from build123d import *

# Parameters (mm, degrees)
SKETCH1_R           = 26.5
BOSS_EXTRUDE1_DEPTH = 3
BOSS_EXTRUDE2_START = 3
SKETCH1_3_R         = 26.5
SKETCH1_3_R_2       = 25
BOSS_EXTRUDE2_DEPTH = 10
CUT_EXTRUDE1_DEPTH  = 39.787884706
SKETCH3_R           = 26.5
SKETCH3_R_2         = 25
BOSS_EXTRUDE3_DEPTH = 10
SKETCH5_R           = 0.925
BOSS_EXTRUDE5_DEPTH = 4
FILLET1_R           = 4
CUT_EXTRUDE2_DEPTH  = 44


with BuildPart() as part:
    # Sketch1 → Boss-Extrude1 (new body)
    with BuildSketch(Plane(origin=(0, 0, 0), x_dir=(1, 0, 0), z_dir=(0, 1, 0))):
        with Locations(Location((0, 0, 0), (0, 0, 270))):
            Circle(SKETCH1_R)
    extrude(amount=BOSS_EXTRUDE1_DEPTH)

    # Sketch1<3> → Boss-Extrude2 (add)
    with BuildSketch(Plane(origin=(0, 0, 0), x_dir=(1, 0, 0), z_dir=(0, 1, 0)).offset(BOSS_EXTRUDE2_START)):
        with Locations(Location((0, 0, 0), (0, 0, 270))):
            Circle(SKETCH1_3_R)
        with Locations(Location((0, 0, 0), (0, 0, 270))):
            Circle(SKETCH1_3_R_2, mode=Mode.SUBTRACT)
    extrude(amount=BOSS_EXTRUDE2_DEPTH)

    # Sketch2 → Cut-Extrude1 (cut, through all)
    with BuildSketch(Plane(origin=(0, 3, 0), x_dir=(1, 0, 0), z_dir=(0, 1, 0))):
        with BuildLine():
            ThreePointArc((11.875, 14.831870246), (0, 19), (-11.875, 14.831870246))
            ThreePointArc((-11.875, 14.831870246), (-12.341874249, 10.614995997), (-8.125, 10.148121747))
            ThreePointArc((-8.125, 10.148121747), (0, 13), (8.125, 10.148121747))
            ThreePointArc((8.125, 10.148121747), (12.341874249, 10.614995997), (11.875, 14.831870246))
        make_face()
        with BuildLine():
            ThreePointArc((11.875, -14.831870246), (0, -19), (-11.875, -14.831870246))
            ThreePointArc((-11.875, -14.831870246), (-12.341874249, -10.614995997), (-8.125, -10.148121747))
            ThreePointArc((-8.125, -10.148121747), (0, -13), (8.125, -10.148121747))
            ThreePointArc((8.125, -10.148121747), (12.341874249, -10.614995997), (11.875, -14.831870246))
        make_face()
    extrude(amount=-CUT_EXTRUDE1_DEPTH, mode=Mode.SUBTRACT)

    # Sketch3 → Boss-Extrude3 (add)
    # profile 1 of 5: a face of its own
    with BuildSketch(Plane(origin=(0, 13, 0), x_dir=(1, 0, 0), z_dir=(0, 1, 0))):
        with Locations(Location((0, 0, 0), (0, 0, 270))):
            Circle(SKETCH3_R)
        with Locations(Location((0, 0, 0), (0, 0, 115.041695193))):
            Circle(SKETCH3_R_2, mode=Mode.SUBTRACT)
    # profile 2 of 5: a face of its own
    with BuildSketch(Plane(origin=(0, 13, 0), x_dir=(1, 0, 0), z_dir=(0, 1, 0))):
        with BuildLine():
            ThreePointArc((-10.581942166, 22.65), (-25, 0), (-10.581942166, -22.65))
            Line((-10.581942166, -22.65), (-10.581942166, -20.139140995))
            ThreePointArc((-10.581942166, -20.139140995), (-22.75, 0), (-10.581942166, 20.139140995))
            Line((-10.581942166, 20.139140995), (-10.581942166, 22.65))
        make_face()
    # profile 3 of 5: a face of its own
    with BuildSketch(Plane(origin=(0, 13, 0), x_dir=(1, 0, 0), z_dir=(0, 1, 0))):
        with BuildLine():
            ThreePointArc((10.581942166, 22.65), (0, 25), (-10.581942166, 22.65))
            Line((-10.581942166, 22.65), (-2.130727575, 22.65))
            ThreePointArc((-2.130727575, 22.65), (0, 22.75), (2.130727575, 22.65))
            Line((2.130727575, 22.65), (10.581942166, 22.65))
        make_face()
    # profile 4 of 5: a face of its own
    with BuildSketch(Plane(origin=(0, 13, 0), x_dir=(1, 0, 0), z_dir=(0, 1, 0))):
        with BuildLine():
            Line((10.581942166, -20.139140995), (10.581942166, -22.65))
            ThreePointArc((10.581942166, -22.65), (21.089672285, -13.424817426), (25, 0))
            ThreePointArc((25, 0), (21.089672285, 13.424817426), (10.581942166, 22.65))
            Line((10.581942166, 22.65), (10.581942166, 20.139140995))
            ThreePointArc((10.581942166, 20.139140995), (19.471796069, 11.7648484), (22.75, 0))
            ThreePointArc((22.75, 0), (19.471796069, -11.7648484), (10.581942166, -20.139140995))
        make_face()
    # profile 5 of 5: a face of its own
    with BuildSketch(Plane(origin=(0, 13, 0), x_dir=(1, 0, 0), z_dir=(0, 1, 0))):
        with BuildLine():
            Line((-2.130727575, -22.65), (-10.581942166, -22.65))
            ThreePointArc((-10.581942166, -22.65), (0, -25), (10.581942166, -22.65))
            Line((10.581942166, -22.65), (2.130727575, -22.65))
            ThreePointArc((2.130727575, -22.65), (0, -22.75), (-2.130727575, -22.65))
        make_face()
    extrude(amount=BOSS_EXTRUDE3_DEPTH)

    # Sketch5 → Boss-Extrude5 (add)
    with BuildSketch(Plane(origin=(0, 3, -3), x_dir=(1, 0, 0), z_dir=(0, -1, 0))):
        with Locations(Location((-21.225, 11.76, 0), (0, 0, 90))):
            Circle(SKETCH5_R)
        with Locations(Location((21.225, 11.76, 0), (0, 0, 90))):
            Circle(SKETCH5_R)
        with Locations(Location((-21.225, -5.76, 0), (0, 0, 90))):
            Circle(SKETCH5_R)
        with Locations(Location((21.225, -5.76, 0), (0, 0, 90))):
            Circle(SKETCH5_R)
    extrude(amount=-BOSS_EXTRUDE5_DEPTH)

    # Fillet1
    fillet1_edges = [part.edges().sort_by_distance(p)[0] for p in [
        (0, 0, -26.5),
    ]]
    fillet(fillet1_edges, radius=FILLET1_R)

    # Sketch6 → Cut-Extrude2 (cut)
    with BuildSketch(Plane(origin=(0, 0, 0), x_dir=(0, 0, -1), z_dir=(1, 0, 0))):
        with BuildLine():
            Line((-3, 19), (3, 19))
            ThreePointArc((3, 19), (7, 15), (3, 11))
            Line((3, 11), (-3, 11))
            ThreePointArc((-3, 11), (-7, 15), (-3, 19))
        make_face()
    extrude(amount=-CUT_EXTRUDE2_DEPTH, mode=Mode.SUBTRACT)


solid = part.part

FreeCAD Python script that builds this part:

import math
import FreeCAD as App
import Part
import Sketcher
from FreeCAD import Vector
Q = App.Units.Quantity


def edges_at(feature, points):
    """Names of the edges that pass closest to the given points."""
    edges = feature.Shape.Edges
    near = lambda p: min(range(len(edges)), key=lambda i: edges[i].distToShape(Part.Vertex(*p))[0])
    return sorted({f"Edge{near(p) + 1}" for p in points})

doc = App.newDocument("Part")
body = doc.addObject("PartDesign::Body", "Body")

# Sketch on XZ plane
sketch1 = doc.addObject("Sketcher::SketchObject", "Sketch")
body.addObject(sketch1)
sketch1.AttachmentSupport = (doc.XZ_Plane, [""])
sketch1.MapMode = "FlatFace"
sketch1.addGeometry(Part.Circle(Vector(0, 0, 0), Vector(0, 0, 1), 26.5), False)
sketch1.addConstraint(Sketcher.Constraint("Coincident", 0, 3, -1, 1))
sketch1.addConstraint(Sketcher.Constraint("Diameter", 0, Q("53 mm")))
pad1 = doc.addObject("PartDesign::Pad", "Pad")
body.addObject(pad1)
pad1.Profile = sketch1
pad1.Length = 3
pad1.Reversed = True

# Sketch on XZ plane
sketch2 = doc.addObject("Sketcher::SketchObject", "Sketch001")
body.addObject(sketch2)
sketch2.AttachmentSupport = (doc.XZ_Plane, [""])
sketch2.MapMode = "FlatFace"
sketch2.AttachmentOffset = App.Placement(Vector(0, 0, -3), App.Rotation())
sketch2.addGeometry(Part.Circle(Vector(0, 0, 0), Vector(0, 0, 1), 26.5), False)
sketch2.addGeometry(Part.Circle(Vector(0, 0, 0), Vector(0, 0, 1), 25), False)
sketch2.addConstraint(Sketcher.Constraint("Coincident", 0, 3, -1, 1))
sketch2.addConstraint(Sketcher.Constraint("Coincident", 1, 3, -1, 1))
sketch2.addConstraint(Sketcher.Constraint("Diameter", 0, Q("53 mm")))
sketch2.addConstraint(Sketcher.Constraint("Diameter", 1, Q("50 mm")))
pad2 = doc.addObject("PartDesign::Pad", "Pad001")
body.addObject(pad2)
pad2.Profile = sketch2
pad2.Length = 10
pad2.Reversed = True

# Sketch on XZ plane
sketch3 = doc.addObject("Sketcher::SketchObject", "Sketch002")
body.addObject(sketch3)
sketch3.AttachmentSupport = (doc.XZ_Plane, [""])
sketch3.MapMode = "FlatFace"
sketch3.AttachmentOffset = App.Placement(Vector(0, 0, -3), App.Rotation())
sketch3.addGeometry(Part.ArcOfCircle(Part.Circle(Vector(0, 0, 0), Vector(0, 0, 1), 19), math.radians(-128.682187), math.radians(-51.317813)), False)
sketch3.addGeometry(Part.ArcOfCircle(Part.Circle(Vector(-10, -12.489996, 0), Vector(0, 0, 1), 3), math.radians(51.317813), math.radians(231.317813)), False)
sketch3.addGeometry(Part.ArcOfCircle(Part.Circle(Vector(0, 0, 0), Vector(0, 0, 1), 13), math.radians(-128.682187), math.radians(-51.317813)), False)
sketch3.addGeometry(Part.ArcOfCircle(Part.Circle(Vector(10, -12.489996, 0), Vector(0, 0, 1), 3), math.radians(-51.317813), math.radians(128.682187)), False)
sketch3.addGeometry(Part.ArcOfCircle(Part.Circle(Vector(0, 0, 0), Vector(0, 0, 1), 19), math.radians(51.317813), math.radians(128.682187)), False)
sketch3.addGeometry(Part.ArcOfCircle(Part.Circle(Vector(10, 12.489996, 0), Vector(0, 0, 1), 3), math.radians(-128.682187), math.radians(51.317813)), False)
sketch3.addGeometry(Part.ArcOfCircle(Part.Circle(Vector(0, 0, 0), Vector(0, 0, 1), 13), math.radians(51.317813), math.radians(128.682187)), False)
sketch3.addGeometry(Part.ArcOfCircle(Part.Circle(Vector(-10, 12.489996, 0), Vector(0, 0, 1), 3), math.radians(128.682187), math.radians(308.682187)), False)
sketch3.addConstraint(Sketcher.Constraint("Tangent", 0, 1, 1, 2))
sketch3.addConstraint(Sketcher.Constraint("Tangent", 1, 1, 2, 1))
sketch3.addConstraint(Sketcher.Constraint("Tangent", 2, 2, 3, 2))
sketch3.addConstraint(Sketcher.Constraint("Tangent", 3, 1, 0, 2))
sketch3.addConstraint(Sketcher.Constraint("Tangent", 4, 1, 5, 2))
sketch3.addConstraint(Sketcher.Constraint("Tangent", 5, 1, 6, 1))
sketch3.addConstraint(Sketcher.Constraint("Tangent", 6, 2, 7, 2))
sketch3.addConstraint(Sketcher.Constraint("Tangent", 7, 1, 4, 2))
sketch3.addConstraint(Sketcher.Constraint("Coincident", 0, 3, -1, 1))
sketch3.addConstraint(Sketcher.Constraint("Coincident", 2, 3, -1, 1))
sketch3.addConstraint(Sketcher.Constraint("Coincident", 4, 3, -1, 1))
sketch3.addConstraint(Sketcher.Constraint("Coincident", 6, 3, -1, 1))
sketch3.addConstraint(Sketcher.Constraint("Equal", 0, 4))
sketch3.addConstraint(Sketcher.Constraint("Equal", 3, 5))
sketch3.addConstraint(Sketcher.Constraint("Horizontal", 1, 3, 3, 3))
sketch3.addConstraint(Sketcher.Constraint("Horizontal", 5, 3, 7, 3))
sketch3.addConstraint(Sketcher.Constraint("Vertical", 3, 3, 5, 3))
sketch3.addConstraint(Sketcher.Constraint("Radius", 0, Q("19 mm")))
sketch3.addConstraint(Sketcher.Constraint("Radius", 1, Q("3 mm")))
sketch3.addConstraint(Sketcher.Constraint("DistanceX", 1, 3, -1, 1, Q("10 mm")))
pocket1 = doc.addObject("PartDesign::Pocket", "Pocket")
body.addObject(pocket1)
pocket1.Profile = sketch3
pocket1.Type = "ThroughAll"
pocket1.Reversed = True

# Sketch on XZ plane
sketch4 = doc.addObject("Sketcher::SketchObject", "Sketch003")
body.addObject(sketch4)
sketch4.AttachmentSupport = (doc.XZ_Plane, [""])
sketch4.MapMode = "FlatFace"
sketch4.AttachmentOffset = App.Placement(Vector(0, 0, -13), App.Rotation())
sketch4.addGeometry(Part.Circle(Vector(0, 0, 0), Vector(0, 0, 1), 26.5), False)
sketch4.addGeometry(Part.LineSegment(Vector(-10.581942, -20.139141, 0), Vector(-10.581942, -22.65, 0)), False)
sketch4.addGeometry(Part.LineSegment(Vector(-10.581942, -22.65, 0), Vector(-2.130728, -22.65, 0)), False)
sketch4.addGeometry(Part.ArcOfCircle(Part.Circle(Vector(0, 0, 0), Vector(0, 0, 1), 22.75), math.radians(-95.374105), math.radians(-84.625895)), False)
sketch4.addGeometry(Part.LineSegment(Vector(2.130728, -22.65, 0), Vector(10.581942, -22.65, 0)), False)
sketch4.addGeometry(Part.LineSegment(Vector(10.581942, -22.65, 0), Vector(10.581942, -20.139141, 0)), False)
sketch4.addGeometry(Part.ArcOfCircle(Part.Circle(Vector(0, 0, 0), Vector(0, 0, 1), 22.75), math.radians(-62.280697), math.radians(0)), False)
sketch4.addGeometry(Part.ArcOfCircle(Part.Circle(Vector(0, 0, 0), Vector(0, 0, 1), 22.75), math.radians(0), math.radians(62.280697)), False)
sketch4.addGeometry(Part.LineSegment(Vector(10.581942, 20.139141, 0), Vector(10.581942, 22.65, 0)), False)
sketch4.addGeometry(Part.LineSegment(Vector(10.581942, 22.65, 0), Vector(2.130728, 22.65, 0)), False)
sketch4.addGeometry(Part.ArcOfCircle(Part.Circle(Vector(0, 0, 0), Vector(0, 0, 1), 22.75), math.radians(84.625895), math.radians(95.374105)), False)
sketch4.addGeometry(Part.LineSegment(Vector(-2.130728, 22.65, 0), Vector(-10.581942, 22.65, 0)), False)
sketch4.addGeometry(Part.LineSegment(Vector(-10.581942, 22.65, 0), Vector(-10.581942, 20.139141, 0)), False)
sketch4.addGeometry(Part.ArcOfCircle(Part.Circle(Vector(0, 0, 0), Vector(0, 0, 1), 22.75), math.radians(117.719303), math.radians(242.280697)), False)
sketch4.addConstraint(Sketcher.Constraint("Coincident", 1, 2, 2, 1))
sketch4.addConstraint(Sketcher.Constraint("Coincident", 2, 2, 3, 1))
sketch4.addConstraint(Sketcher.Constraint("Coincident", 3, 2, 4, 1))
sketch4.addConstraint(Sketcher.Constraint("Coincident", 4, 2, 5, 1))
sketch4.addConstraint(Sketcher.Constraint("Coincident", 5, 2, 6, 1))
sketch4.addConstraint(Sketcher.Constraint("Tangent", 6, 2, 7, 1))
sketch4.addConstraint(Sketcher.Constraint("Coincident", 7, 2, 8, 1))
sketch4.addConstraint(Sketcher.Constraint("Coincident", 8, 2, 9, 1))
sketch4.addConstraint(Sketcher.Constraint("Coincident", 9, 2, 10, 1))
sketch4.addConstraint(Sketcher.Constraint("Coincident", 10, 2, 11, 1))
sketch4.addConstraint(Sketcher.Constraint("Coincident", 11, 2, 12, 1))
sketch4.addConstraint(Sketcher.Constraint("Coincident", 12, 2, 13, 1))
sketch4.addConstraint(Sketcher.Constraint("Coincident", 13, 2, 1, 1))
sketch4.addConstraint(Sketcher.Constraint("Vertical", 1))
sketch4.addConstraint(Sketcher.Constraint("Horizontal", 2))
sketch4.addConstraint(Sketcher.Constraint("Horizontal", 4))
sketch4.addConstraint(Sketcher.Constraint("Vertical", 5))
sketch4.addConstraint(Sketcher.Constraint("Vertical", 8))
sketch4.addConstraint(Sketcher.Constraint("Horizontal", 9))
sketch4.addConstraint(Sketcher.Constraint("Horizontal", 11))
sketch4.addConstraint(Sketcher.Constraint("Vertical", 12))
sketch4.addConstraint(Sketcher.Constraint("Coincident", 0, 3, -1, 1))
sketch4.addConstraint(Sketcher.Constraint("Coincident", 3, 3, -1, 1))
sketch4.addConstraint(Sketcher.Constraint("Coincident", 6, 3, -1, 1))
sketch4.addConstraint(Sketcher.Constraint("Coincident", 10, 3, -1, 1))
sketch4.addConstraint(Sketcher.Constraint("Coincident", 13, 3, -1, 1))
sketch4.addConstraint(Sketcher.Constraint("Equal", 3, 6))
sketch4.addConstraint(Sketcher.Constraint("Equal", 6, 7))
sketch4.addConstraint(Sketcher.Constraint("Equal", 7, 10))
sketch4.addConstraint(Sketcher.Constraint("Equal", 10, 13))
sketch4.addConstraint(Sketcher.Constraint("Symmetric", 1, 2, 8, 2, -1, 1))
sketch4.addConstraint(Sketcher.Constraint("Symmetric", 4, 2, 11, 2, -1, 1))
sketch4.addConstraint(Sketcher.Constraint("Symmetric", 1, 2, 4, 2, -2))
sketch4.addConstraint(Sketcher.Constraint("PointOnObject", 6, 2, -1))
sketch4.addConstraint(Sketcher.Constraint("Diameter", 0, Q("53 mm")))
sketch4.addConstraint(Sketcher.Constraint("Radius", 3, Q("22.75 mm")))
sketch4.addConstraint(Sketcher.Constraint("DistanceY", 1, 2, -1, 1, Q("22.65 mm")))
sketch4.addConstraint(Sketcher.Constraint("DistanceY", 1, 2, 1, 1, Q("2.510859 mm")))
pad3 = doc.addObject("PartDesign::Pad", "Pad002")
body.addObject(pad3)
pad3.Profile = sketch4
pad3.Length = 10
pad3.Reversed = True

# Sketch on XZ plane
sketch5 = doc.addObject("Sketcher::SketchObject", "Sketch004")
body.addObject(sketch5)
sketch5.AttachmentSupport = (doc.XZ_Plane, [""])
sketch5.MapMode = "FlatFace"
sketch5.AttachmentOffset = App.Placement(Vector(0, 0, -3), App.Rotation())
sketch5.addGeometry(Part.Circle(Vector(-21.225, 8.76, 0), Vector(0, 0, 1), 0.925), False)
sketch5.addGeometry(Part.Circle(Vector(21.225, 8.76, 0), Vector(0, 0, 1), 0.925), False)
sketch5.addGeometry(Part.Circle(Vector(-21.225, -8.76, 0), Vector(0, 0, 1), 0.925), False)
sketch5.addGeometry(Part.Circle(Vector(21.225, -8.76, 0), Vector(0, 0, 1), 0.925), False)
sketch5.addConstraint(Sketcher.Constraint("Equal", 0, 1))
sketch5.addConstraint(Sketcher.Constraint("Equal", 1, 2))
sketch5.addConstraint(Sketcher.Constraint("Equal", 2, 3))
sketch5.addConstraint(Sketcher.Constraint("Symmetric", 1, 3, 2, 3, -1, 1))
sketch5.addConstraint(Sketcher.Constraint("Symmetric", 0, 3, 3, 3, -1, 1))
sketch5.addConstraint(Sketcher.Constraint("Symmetric", 0, 3, 1, 3, -2))
sketch5.addConstraint(Sketcher.Constraint("Diameter", 0, Q("1.85 mm")))
sketch5.addConstraint(Sketcher.Constraint("DistanceY", -1, 1, 0, 3, Q("8.76 mm")))
sketch5.addConstraint(Sketcher.Constraint("DistanceX", 0, 3, 1, 3, Q("42.45 mm")))
pad4 = doc.addObject("PartDesign::Pad", "Pad003")
body.addObject(pad4)
pad4.Profile = sketch5
pad4.Length = 4
pad4.Reversed = True
doc.recompute()

fillet = doc.addObject("PartDesign::Fillet", "Fillet")
body.addObject(fillet)
fillet.Base = (pad4, edges_at(pad4, [(0, 0, -26.5)]))
fillet.Radius = 4

# Sketch on YZ plane
sketch6 = doc.addObject("Sketcher::SketchObject", "Sketch005")
body.addObject(sketch6)
sketch6.AttachmentSupport = (doc.YZ_Plane, [""])
sketch6.MapMode = "FlatFace"
sketch6.addGeometry(Part.LineSegment(Vector(19, -3, 0), Vector(19, 3, 0)), False)
sketch6.addGeometry(Part.ArcOfCircle(Part.Circle(Vector(15, 3, 0), Vector(0, 0, 1), 4), math.radians(0), math.radians(180)), False)
sketch6.addGeometry(Part.LineSegment(Vector(11, 3, 0), Vector(11, -3, 0)), False)
sketch6.addGeometry(Part.ArcOfCircle(Part.Circle(Vector(15, -3, 0), Vector(0, 0, 1), 4), math.radians(180), math.radians(360)), False)
sketch6.addConstraint(Sketcher.Constraint("Tangent", 0, 2, 1, 1))
sketch6.addConstraint(Sketcher.Constraint("Tangent", 1, 2, 2, 1))
sketch6.addConstraint(Sketcher.Constraint("Tangent", 2, 2, 3, 1))
sketch6.addConstraint(Sketcher.Constraint("Tangent", 3, 2, 0, 1))
sketch6.addConstraint(Sketcher.Constraint("Vertical", 0))
sketch6.addConstraint(Sketcher.Constraint("Vertical", 2))
sketch6.addConstraint(Sketcher.Constraint("Radius", 1, Q("4 mm")))
sketch6.addConstraint(Sketcher.Constraint("DistanceY", 0, 1, 0, 2, Q("6 mm")))
sketch6.addConstraint(Sketcher.Constraint("DistanceX", -1, 1, 1, 3, Q("15 mm")))
sketch6.addConstraint(Sketcher.Constraint("DistanceY", -1, 1, 1, 3, Q("3 mm")))
pocket2 = doc.addObject("PartDesign::Pocket", "Pocket001")
body.addObject(pocket2)
pocket2.Profile = sketch6
pocket2.Length = 44

doc.recompute()
